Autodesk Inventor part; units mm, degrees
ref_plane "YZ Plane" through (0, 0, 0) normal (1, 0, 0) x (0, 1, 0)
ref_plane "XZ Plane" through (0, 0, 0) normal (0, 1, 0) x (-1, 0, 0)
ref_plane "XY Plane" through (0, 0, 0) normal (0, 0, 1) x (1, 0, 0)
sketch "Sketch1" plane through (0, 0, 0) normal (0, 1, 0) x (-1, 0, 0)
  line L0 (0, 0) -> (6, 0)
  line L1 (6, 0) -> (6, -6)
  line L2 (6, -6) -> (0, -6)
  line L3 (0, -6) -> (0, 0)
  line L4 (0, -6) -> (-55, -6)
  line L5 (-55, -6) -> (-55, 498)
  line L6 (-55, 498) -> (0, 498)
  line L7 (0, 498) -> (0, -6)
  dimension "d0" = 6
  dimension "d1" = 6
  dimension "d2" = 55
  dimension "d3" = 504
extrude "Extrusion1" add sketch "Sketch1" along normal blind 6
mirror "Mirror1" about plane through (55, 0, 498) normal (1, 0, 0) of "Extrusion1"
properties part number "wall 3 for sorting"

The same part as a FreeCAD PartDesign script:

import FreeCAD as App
import Part
import Sketcher

V = App.Vector
Q = App.Units.Quantity


def add_polygon(sketch, points):
    """Adds a closed chain of lines whose ends are joined by coincident constraints."""
    first, n = sketch.GeometryCount, len(points)
    for a, b in zip(points, points[1:] + points[:1]):
        sketch.addGeometry(Part.LineSegment(App.Vector(*a, 0), App.Vector(*b, 0)), False)
    for i in range(n):
        sketch.addConstraint(Sketcher.Constraint("Coincident", first + i, 2, first + (i + 1) % n, 1))

doc = App.newDocument("Part")
body = doc.addObject("PartDesign::Body", "Body")

# Sketch on XZ plane
sketch1 = body.newObject("Sketcher::SketchObject", "Sketch")
sketch1.AttachmentSupport = (doc.getObject("XZ_Plane"), [""])
sketch1.MapMode = "FlatFace"
add_polygon(sketch1, [(-6, 0), (0, 0), (0, 498), (55, 498), (55, -6), (-6, -6)])  # lines 0-5
sketch1.addConstraint([
    Sketcher.Constraint("Horizontal", 0),
    Sketcher.Constraint("Vertical", 1),
    Sketcher.Constraint("Horizontal", 2),
    Sketcher.Constraint("Vertical", 3),
    Sketcher.Constraint("Horizontal", 4),
    Sketcher.Constraint("Vertical", 5),
    Sketcher.Constraint("Coincident", 0, 2, -1, 1),
    Sketcher.Constraint("Equal", 0, 5),
    Sketcher.Constraint("DistanceX", 0, 1, 0, 2, Q("6 mm")),
    Sketcher.Constraint("DistanceX", 2, 1, 2, 2, Q("55 mm")),
    Sketcher.Constraint("DistanceY", 3, 2, 3, 1, Q("504 mm")),
])
pad1 = body.newObject("PartDesign::Pad", "Pad")
pad1.Profile = sketch1
pad1.Length = 6
pad1.Reversed = True
doc.recompute()

datumplane = body.newObject("PartDesign::Plane", "DatumPlane")
datumplane.AttachmentSupport = (doc.getObject("YZ_Plane"), [""])
datumplane.MapMode = "FlatFace"
datumplane.AttachmentOffset = App.Placement(V(0, 0, 55), App.Rotation())
mirrored = body.newObject("PartDesign::Mirrored", "Mirrored")
mirrored.Originals = [pad1]
mirrored.MirrorPlane = (datumplane, [""])
body.Tip = mirrored

doc.recompute()
